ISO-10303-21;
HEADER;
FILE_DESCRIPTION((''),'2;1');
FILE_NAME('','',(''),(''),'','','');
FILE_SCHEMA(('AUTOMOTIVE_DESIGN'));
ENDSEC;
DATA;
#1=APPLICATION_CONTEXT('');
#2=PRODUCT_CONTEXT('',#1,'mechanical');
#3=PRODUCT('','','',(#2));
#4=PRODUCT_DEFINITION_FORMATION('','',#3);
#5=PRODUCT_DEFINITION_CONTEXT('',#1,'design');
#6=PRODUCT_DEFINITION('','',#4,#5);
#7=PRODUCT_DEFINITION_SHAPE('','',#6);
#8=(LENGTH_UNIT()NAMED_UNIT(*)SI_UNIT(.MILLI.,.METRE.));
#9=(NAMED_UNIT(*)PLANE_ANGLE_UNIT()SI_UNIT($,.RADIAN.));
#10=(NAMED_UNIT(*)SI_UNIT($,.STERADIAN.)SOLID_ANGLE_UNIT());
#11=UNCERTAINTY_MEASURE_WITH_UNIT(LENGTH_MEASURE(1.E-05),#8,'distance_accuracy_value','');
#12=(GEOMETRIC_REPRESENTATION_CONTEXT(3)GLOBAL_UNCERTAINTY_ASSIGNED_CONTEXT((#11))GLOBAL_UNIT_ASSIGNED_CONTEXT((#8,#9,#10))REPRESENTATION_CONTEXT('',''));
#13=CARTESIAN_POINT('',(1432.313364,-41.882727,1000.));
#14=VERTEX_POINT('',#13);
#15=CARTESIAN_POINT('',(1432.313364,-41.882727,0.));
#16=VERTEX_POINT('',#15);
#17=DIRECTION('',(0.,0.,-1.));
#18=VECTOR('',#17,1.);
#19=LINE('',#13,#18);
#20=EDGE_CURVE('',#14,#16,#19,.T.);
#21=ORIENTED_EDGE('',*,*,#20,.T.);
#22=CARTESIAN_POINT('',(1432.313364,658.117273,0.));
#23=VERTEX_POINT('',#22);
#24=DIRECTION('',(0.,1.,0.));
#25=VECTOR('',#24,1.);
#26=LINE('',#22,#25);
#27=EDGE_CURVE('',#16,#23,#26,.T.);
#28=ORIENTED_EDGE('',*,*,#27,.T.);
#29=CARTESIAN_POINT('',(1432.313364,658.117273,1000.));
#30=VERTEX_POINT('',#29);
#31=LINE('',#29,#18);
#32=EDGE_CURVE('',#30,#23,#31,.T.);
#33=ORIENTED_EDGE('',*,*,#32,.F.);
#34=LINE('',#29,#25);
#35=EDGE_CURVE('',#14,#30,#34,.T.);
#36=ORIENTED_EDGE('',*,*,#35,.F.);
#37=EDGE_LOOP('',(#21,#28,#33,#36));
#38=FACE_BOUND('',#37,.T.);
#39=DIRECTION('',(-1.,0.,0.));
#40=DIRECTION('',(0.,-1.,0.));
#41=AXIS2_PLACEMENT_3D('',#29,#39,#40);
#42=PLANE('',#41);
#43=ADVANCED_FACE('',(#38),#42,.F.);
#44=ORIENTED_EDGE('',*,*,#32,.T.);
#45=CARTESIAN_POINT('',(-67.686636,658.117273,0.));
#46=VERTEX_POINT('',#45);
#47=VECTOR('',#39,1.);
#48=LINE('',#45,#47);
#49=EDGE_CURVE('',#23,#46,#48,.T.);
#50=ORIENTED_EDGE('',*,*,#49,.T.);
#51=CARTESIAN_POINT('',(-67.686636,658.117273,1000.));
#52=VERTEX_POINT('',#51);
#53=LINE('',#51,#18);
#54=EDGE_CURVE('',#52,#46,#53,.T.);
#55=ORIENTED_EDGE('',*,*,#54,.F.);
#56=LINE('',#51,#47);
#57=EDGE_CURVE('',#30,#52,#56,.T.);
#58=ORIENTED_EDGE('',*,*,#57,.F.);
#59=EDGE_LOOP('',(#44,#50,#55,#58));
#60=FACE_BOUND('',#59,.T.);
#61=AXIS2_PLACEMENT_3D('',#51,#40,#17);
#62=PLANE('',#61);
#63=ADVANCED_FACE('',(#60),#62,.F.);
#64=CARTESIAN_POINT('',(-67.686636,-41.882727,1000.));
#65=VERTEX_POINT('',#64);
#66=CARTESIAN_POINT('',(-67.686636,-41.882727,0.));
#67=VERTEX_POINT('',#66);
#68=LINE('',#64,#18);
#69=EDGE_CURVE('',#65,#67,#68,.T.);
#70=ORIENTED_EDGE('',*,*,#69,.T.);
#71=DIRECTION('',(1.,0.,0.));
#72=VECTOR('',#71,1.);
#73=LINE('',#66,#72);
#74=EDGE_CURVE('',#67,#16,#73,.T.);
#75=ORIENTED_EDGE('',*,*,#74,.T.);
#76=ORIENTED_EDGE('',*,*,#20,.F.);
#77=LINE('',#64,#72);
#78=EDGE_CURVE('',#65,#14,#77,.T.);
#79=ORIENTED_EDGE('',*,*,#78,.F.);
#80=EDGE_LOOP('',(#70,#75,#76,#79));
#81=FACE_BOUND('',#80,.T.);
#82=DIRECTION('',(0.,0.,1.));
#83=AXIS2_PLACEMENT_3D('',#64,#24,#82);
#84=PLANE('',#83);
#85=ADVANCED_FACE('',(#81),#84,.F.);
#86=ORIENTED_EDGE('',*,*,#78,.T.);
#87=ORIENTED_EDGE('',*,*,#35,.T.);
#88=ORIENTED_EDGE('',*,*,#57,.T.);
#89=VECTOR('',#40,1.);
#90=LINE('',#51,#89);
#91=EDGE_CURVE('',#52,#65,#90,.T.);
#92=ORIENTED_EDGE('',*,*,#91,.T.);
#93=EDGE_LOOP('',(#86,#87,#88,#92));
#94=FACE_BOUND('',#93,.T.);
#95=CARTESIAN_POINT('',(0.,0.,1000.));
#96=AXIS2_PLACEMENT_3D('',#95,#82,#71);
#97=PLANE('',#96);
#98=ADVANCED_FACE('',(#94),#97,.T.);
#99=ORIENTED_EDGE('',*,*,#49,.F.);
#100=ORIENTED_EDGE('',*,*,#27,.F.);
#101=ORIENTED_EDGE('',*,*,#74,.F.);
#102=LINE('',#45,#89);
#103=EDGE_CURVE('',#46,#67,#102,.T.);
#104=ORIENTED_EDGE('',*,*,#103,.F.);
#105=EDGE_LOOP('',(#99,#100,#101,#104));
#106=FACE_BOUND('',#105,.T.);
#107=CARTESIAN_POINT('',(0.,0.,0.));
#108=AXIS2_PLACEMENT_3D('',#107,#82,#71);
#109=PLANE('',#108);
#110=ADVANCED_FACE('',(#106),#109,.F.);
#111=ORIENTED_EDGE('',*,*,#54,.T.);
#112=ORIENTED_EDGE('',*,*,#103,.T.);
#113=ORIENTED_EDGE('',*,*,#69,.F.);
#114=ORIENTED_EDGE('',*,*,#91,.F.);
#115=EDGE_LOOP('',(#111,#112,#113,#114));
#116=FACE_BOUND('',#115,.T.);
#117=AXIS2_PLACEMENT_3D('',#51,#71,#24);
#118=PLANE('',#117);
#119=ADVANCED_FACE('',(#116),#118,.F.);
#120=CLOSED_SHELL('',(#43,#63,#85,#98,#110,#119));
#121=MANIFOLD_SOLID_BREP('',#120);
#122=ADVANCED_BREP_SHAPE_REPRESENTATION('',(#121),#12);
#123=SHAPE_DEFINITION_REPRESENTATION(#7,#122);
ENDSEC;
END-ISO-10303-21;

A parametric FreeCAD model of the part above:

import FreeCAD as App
import Part
import Sketcher
Q = App.Units.Quantity


def add_polygon(sketch, points):
    """Adds a closed chain of lines whose ends are joined by coincident constraints."""
    first, n = sketch.GeometryCount, len(points)
    for a, b in zip(points, points[1:] + points[:1]):
        sketch.addGeometry(Part.LineSegment(App.Vector(*a, 0), App.Vector(*b, 0)), False)
    for i in range(n):
        sketch.addConstraint(Sketcher.Constraint("Coincident", first + i, 2, first + (i + 1) % n, 1))

doc = App.newDocument("Part")
body = doc.addObject("PartDesign::Body", "Body")

# Sketch on XY plane
sketch1 = body.newObject("Sketcher::SketchObject", "Sketch")
sketch1.AttachmentSupport = (doc.getObject("XY_Plane"), [""])
sketch1.MapMode = "FlatFace"
add_polygon(sketch1, [(-68, 658), (-68, -42), (1432, -42), (1432, 658)])  # lines 0-3
sketch1.addConstraint([
    Sketcher.Constraint("Vertical", 0),
    Sketcher.Constraint("Horizontal", 1),
    Sketcher.Constraint("Vertical", 2),
    Sketcher.Constraint("Horizontal", 3),
    Sketcher.Constraint("DistanceX", 1, 1, 1, 2, Q("1500 mm")),
    Sketcher.Constraint("DistanceY", 0, 2, 0, 1, Q("700 mm")),
    Sketcher.Constraint("DistanceX", 0, 2, -1, 1, Q("67.686636 mm")),
    Sketcher.Constraint("DistanceY", 0, 2, -1, 1, Q("41.882727 mm")),
])
pad1 = body.newObject("PartDesign::Pad", "Pad")
pad1.Profile = sketch1
pad1.Length = 1000

doc.recompute()
